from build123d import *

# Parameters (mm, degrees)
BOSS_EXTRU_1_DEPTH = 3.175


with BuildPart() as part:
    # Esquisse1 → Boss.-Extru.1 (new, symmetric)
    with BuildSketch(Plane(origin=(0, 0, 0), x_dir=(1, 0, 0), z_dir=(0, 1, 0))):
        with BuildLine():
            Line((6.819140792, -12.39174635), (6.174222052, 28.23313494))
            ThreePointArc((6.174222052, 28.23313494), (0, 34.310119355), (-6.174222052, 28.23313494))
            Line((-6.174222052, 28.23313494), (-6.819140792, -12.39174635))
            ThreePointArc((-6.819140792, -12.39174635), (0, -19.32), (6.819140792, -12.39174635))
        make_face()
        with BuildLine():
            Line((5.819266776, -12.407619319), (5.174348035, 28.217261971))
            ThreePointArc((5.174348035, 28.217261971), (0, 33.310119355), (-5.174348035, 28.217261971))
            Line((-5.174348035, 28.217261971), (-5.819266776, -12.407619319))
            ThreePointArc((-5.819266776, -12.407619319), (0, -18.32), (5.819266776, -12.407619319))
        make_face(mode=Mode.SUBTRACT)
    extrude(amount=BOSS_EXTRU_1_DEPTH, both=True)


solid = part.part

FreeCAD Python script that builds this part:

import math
import FreeCAD as App
import Part
import Sketcher
Q = App.Units.Quantity

doc = App.newDocument("Part")
params = doc.addObject("Spreadsheet::Sheet", "Params")
for row, (alias, value) in enumerate([
    ("pad1_length", "0.25 in"),
], start=1):
    params.set(f"A{row}", alias)
    params.set(f"B{row}", "=" + value)
    params.setAlias(f"B{row}", alias)

body = doc.addObject("PartDesign::Body", "Body")

# Sketch on XZ plane
sketch1 = body.newObject("Sketcher::SketchObject", "Sketch")
sketch1.AttachmentSupport = (doc.getObject("XZ_Plane"), [""])
sketch1.MapMode = "FlatFace"
sketch1.addGeometry(Part.LineSegment(App.Vector(6.819141, 12.391746, 0), App.Vector(6.174222, -28.233135, 0)), False)
sketch1.addGeometry(Part.ArcOfCircle(Part.Circle(App.Vector(0, -28.135119, 0), App.Vector(0, 0, 1), 6.175), math.radians(-179.090508), math.radians(-0.909492)), False)
sketch1.addGeometry(Part.LineSegment(App.Vector(-6.174222, -28.233135, 0), App.Vector(-6.819141, 12.391746, 0)), False)
sketch1.addGeometry(Part.ArcOfCircle(Part.Circle(App.Vector(0, 12.5, 0), App.Vector(0, 0, 1), 6.82), math.radians(-0.909492), math.radians(180.909492)), False)
sketch1.addGeometry(Part.LineSegment(App.Vector(5.174348, -28.217262, 0), App.Vector(5.819267, 12.407619, 0)), False)
sketch1.addGeometry(Part.ArcOfCircle(Part.Circle(App.Vector(0, 12.5, 0), App.Vector(0, 0, 1), 5.82), math.radians(-0.909492), math.radians(180.909492)), False)
sketch1.addGeometry(Part.LineSegment(App.Vector(-5.819267, 12.407619, 0), App.Vector(-5.174348, -28.217262, 0)), False)
sketch1.addGeometry(Part.ArcOfCircle(Part.Circle(App.Vector(0, -28.135119, 0), App.Vector(0, 0, 1), 5.175), math.radians(-179.090508), math.radians(-0.909492)), False)
sketch1.addConstraint(Sketcher.Constraint("Tangent", 0, 2, 1, 2))
sketch1.addConstraint(Sketcher.Constraint("Tangent", 1, 1, 2, 1))
sketch1.addConstraint(Sketcher.Constraint("Tangent", 2, 2, 3, 2))
sketch1.addConstraint(Sketcher.Constraint("Tangent", 3, 1, 0, 1))
sketch1.addConstraint(Sketcher.Constraint("Tangent", 4, 2, 5, 1))
sketch1.addConstraint(Sketcher.Constraint("Tangent", 5, 2, 6, 1))
sketch1.addConstraint(Sketcher.Constraint("Tangent", 6, 2, 7, 1))
sketch1.addConstraint(Sketcher.Constraint("Tangent", 7, 2, 4, 1))
sketch1.addConstraint(Sketcher.Constraint("Coincident", 5, 3, 3, 3))
sketch1.addConstraint(Sketcher.Constraint("Coincident", 7, 3, 1, 3))
sketch1.addConstraint(Sketcher.Constraint("Symmetric", 0, 2, 1, 1, -2))
sketch1.addConstraint(Sketcher.Constraint("Parallel", 0, 4))
sketch1.addConstraint(Sketcher.Constraint("Radius", 1, Q("6.175 mm")))
sketch1.addConstraint(Sketcher.Constraint("Radius", 3, Q("6.82 mm")))
sketch1.addConstraint(Sketcher.Constraint("Radius", 5, Q("5.82 mm")))
sketch1.addConstraint(Sketcher.Constraint("Distance", 0, Q("40.63 mm")))
sketch1.addConstraint(Sketcher.Constraint("DistanceY", -1, 1, 3, 3, Q("12.5 mm")))
pad1 = body.newObject("PartDesign::Pad", "Pad")
pad1.Profile = sketch1
pad1.setExpression("Length", "Params.pad1_length")
pad1.Midplane = True

doc.recompute()
